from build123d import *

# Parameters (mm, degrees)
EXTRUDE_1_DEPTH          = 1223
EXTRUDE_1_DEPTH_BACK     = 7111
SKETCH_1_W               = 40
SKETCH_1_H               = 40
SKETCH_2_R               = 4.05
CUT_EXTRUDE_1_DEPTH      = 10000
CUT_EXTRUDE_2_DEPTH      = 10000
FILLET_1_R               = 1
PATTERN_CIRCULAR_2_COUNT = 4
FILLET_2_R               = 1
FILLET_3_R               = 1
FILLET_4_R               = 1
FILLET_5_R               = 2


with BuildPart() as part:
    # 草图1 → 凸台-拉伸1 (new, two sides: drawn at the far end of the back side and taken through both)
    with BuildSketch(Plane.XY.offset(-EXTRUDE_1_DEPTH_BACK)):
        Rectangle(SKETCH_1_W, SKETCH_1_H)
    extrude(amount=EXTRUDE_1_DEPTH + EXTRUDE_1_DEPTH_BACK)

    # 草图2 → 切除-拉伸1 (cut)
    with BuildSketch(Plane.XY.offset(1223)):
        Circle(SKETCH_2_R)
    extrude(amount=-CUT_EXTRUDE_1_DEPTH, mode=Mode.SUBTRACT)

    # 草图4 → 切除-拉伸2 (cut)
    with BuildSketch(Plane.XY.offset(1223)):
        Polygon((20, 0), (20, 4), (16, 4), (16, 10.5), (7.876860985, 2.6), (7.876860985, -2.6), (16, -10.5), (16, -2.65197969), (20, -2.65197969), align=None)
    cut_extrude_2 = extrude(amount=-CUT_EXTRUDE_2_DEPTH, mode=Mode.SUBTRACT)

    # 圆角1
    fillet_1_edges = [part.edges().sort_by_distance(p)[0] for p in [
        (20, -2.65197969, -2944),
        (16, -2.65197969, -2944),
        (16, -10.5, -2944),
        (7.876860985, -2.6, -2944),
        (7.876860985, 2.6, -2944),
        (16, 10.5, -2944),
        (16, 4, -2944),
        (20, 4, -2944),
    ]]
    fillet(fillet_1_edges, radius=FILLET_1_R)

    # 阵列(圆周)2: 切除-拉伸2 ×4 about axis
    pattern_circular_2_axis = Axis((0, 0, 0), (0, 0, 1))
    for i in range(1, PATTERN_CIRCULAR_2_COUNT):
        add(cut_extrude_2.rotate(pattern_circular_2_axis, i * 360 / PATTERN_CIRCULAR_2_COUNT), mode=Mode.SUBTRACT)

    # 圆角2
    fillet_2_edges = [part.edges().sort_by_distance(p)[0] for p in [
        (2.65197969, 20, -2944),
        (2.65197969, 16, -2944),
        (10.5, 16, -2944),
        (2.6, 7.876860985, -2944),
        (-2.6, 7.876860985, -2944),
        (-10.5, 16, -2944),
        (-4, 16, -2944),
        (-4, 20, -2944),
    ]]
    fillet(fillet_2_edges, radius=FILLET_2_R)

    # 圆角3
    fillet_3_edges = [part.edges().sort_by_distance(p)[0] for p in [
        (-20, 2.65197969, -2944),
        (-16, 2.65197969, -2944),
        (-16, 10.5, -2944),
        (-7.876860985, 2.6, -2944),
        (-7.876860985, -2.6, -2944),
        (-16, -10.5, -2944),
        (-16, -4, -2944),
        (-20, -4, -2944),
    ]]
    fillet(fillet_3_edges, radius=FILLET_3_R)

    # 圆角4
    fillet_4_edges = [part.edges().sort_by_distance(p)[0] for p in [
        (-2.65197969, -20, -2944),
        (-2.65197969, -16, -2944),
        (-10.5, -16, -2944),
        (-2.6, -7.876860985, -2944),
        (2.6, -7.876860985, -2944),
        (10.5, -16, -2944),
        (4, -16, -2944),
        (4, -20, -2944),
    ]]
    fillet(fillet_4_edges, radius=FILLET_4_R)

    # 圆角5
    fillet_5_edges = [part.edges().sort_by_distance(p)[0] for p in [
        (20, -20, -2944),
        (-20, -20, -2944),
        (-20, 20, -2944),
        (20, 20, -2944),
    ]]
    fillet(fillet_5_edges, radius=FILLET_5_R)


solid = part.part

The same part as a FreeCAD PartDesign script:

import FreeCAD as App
import Part
import Sketcher


def edges_at(feature, points):
    """Names of the edges that pass closest to the given points."""
    edges = feature.Shape.Edges
    near = lambda p: min(range(len(edges)), key=lambda i: edges[i].distToShape(Part.Vertex(*p))[0])
    return sorted({f"Edge{near(p) + 1}" for p in points})

doc = App.newDocument("Part")
params = doc.addObject("Spreadsheet::Sheet", "Params")
for row, (alias, value) in enumerate([
    ("sketch1_width", "40 mm"),
    ("pad1_length", "1223 mm"),
    ("pad1_length2", "7111 mm"),
    ("sketch2_diameter", "8.1 mm"),
    ("pocket1_length", "10000 mm"),
    ("sketch3_width", "4 mm"),
    ("sketch3_height", "6.5 mm"),
    ("sketch3_height2", "5.2 mm"),
    ("pocket2_length", "10000 mm"),
    ("fillet_radius", "1 mm"),
    ("fillet2_radius", "1 mm"),
    ("fillet3_radius", "1 mm"),
    ("fillet4_radius", "1 mm"),
    ("fillet5_radius", "2 mm"),
], start=1):
    params.set(f"A{row}", alias)
    params.set(f"B{row}", "=" + value)
    params.setAlias(f"B{row}", alias)

body = doc.addObject("PartDesign::Body", "Body")

sketch1 = doc.addObject("Sketcher::SketchObject", "Sketch")
body.addObject(sketch1)
sketch1.AttachmentSupport = (doc.XY_Plane, [""])
sketch1.MapMode = "FlatFace"
sketch1.addGeometry([
    Part.LineSegment(App.Vector(-20, 20, 0), App.Vector(-20, -20, 0)),
    Part.LineSegment(App.Vector(-20, -20, 0), App.Vector(20, -20, 0)),
    Part.LineSegment(App.Vector(20, -20, 0), App.Vector(20, 20, 0)),
    Part.LineSegment(App.Vector(20, 20, 0), App.Vector(-20, 20, 0)),
], False)
sketch1.addConstraint([
    Sketcher.Constraint("Coincident", 0, 2, 1, 1),
    Sketcher.Constraint("Coincident", 1, 2, 2, 1),
    Sketcher.Constraint("Coincident", 2, 2, 3, 1),
    Sketcher.Constraint("Coincident", 3, 2, 0, 1),
    Sketcher.Constraint("Vertical", 0),
    Sketcher.Constraint("Horizontal", 1),
    Sketcher.Constraint("Vertical", 2),
    Sketcher.Constraint("Horizontal", 3),
    Sketcher.Constraint("Symmetric", 0, 2, 2, 2, -1, 1),
    Sketcher.Constraint("Equal", 3, 0),
    Sketcher.Constraint("DistanceX", 1, 1, 1, 2, 40.0),
])
sketch1.setExpression("Constraints[10]", "Params.sketch1_width")
pad1 = doc.addObject("PartDesign::Pad", "Pad")
body.addObject(pad1)
pad1.Profile = sketch1
pad1.Type = "TwoLengths"
pad1.setExpression("Length", "Params.pad1_length")
pad1.setExpression("Length2", "Params.pad1_length2")

sketch2 = doc.addObject("Sketcher::SketchObject", "Sketch001")
body.addObject(sketch2)
sketch2.AttachmentSupport = (doc.XY_Plane, [""])
sketch2.MapMode = "FlatFace"
sketch2.AttachmentOffset = App.Placement(App.Vector(0, 0, 1223), App.Rotation())
sketch2.addGeometry(Part.Circle(App.Vector(0, 0, 0), App.Vector(0, 0, 1), 4.05), False)
sketch2.addConstraint([
    Sketcher.Constraint("Coincident", 0, 3, -1, 1),
    Sketcher.Constraint("Diameter", 0, 8.1),
])
sketch2.setExpression("Constraints[1]", "Params.sketch2_diameter")
pocket1 = doc.addObject("PartDesign::Pocket", "Pocket")
body.addObject(pocket1)
pocket1.Profile = sketch2
pocket1.setExpression("Length", "Params.pocket1_length")

sketch3 = doc.addObject("Sketcher::SketchObject", "Sketch002")
body.addObject(sketch3)
sketch3.AttachmentSupport = (doc.XY_Plane, [""])
sketch3.MapMode = "FlatFace"
sketch3.AttachmentOffset = App.Placement(App.Vector(0, 0, 1223), App.Rotation())
sketch3.addGeometry([
    Part.LineSegment(App.Vector(20, 4, 0), App.Vector(16, 4, 0)),
    Part.LineSegment(App.Vector(16, 4, 0), App.Vector(16, 10.5, 0)),
    Part.LineSegment(App.Vector(16, 10.5, 0), App.Vector(7.876861, 2.6, 0)),
    Part.LineSegment(App.Vector(7.876861, 2.6, 0), App.Vector(7.876861, -2.6, 0)),
    Part.LineSegment(App.Vector(7.876861, -2.6, 0), App.Vector(16, -10.5, 0)),
    Part.LineSegment(App.Vector(16, -10.5, 0), App.Vector(16, -2.65198, 0)),
    Part.LineSegment(App.Vector(16, -2.65198, 0), App.Vector(20, -2.65198, 0)),
    Part.LineSegment(App.Vector(20, -2.65198, 0), App.Vector(20, 4, 0)),
], False)
sketch3.addConstraint([
    Sketcher.Constraint("Coincident", 0, 2, 1, 1),
    Sketcher.Constraint("Coincident", 1, 2, 2, 1),
    Sketcher.Constraint("Coincident", 2, 2, 3, 1),
    Sketcher.Constraint("Coincident", 3, 2, 4, 1),
    Sketcher.Constraint("Coincident", 4, 2, 5, 1),
    Sketcher.Constraint("Coincident", 5, 2, 6, 1),
    Sketcher.Constraint("Coincident", 6, 2, 7, 1),
    Sketcher.Constraint("Coincident", 7, 2, 0, 1),
    Sketcher.Constraint("Horizontal", 0),
    Sketcher.Constraint("Vertical", 1),
    Sketcher.Constraint("Vertical", 3),
    Sketcher.Constraint("Vertical", 5),
    Sketcher.Constraint("Horizontal", 6),
    Sketcher.Constraint("Vertical", 7),
    Sketcher.Constraint("Symmetric", 1, 2, 4, 2, -1),
    Sketcher.Constraint("Equal", 2, 4),
    Sketcher.Constraint("DistanceX", 0, 2, 0, 1, 4.0),
    Sketcher.Constraint("DistanceY", 1, 1, 1, 2, 6.5),
    Sketcher.Constraint("DistanceY", 3, 2, 3, 1, 5.2),
    Sketcher.Constraint("DistanceX", -1, 1, 0, 2, 16.0),
    Sketcher.Constraint("DistanceY", -1, 1, 0, 2, 4.0),
    Sketcher.Constraint("DistanceY", 5, 1, 5, 2, 7.84802),
    Sketcher.Constraint("Distance", 2, 11.331169),
])
sketch3.setExpression("Constraints[16]", "Params.sketch3_width")
sketch3.setExpression("Constraints[17]", "Params.sketch3_height")
sketch3.setExpression("Constraints[18]", "Params.sketch3_height2")
pocket2 = doc.addObject("PartDesign::Pocket", "Pocket001")
body.addObject(pocket2)
pocket2.Profile = sketch3
pocket2.setExpression("Length", "Params.pocket2_length")
doc.recompute()

fillet = doc.addObject("PartDesign::Fillet", "Fillet")
body.addObject(fillet)
fillet.Base = (pocket2, edges_at(pocket2, [
    (20, -2.652, -2944),
    (16, -2.652, -2944),
    (16, -10.5, -2944),
    (7.877, -2.6, -2944),
    (7.877, 2.6, -2944),
    (16, 10.5, -2944),
    (16, 4, -2944),
    (20, 4, -2944),
]))
fillet.setExpression("Radius", "Params.fillet_radius")
doc.recompute()

polarpattern = doc.addObject("PartDesign::PolarPattern", "PolarPattern")
body.addObject(polarpattern)
polarpattern.Originals = [pocket2]
polarpattern.Axis = (doc.Z_Axis, [""])
polarpattern.Angle = 360
polarpattern.Occurrences = 4
body.Tip = polarpattern
doc.recompute()

fillet2 = doc.addObject("PartDesign::Fillet", "Fillet001")
body.addObject(fillet2)
fillet2.Base = (polarpattern, edges_at(polarpattern, [
    (2.652, 20, -2944),
    (2.652, 16, -2944),
    (10.5, 16, -2944),
    (2.6, 7.877, -2944),
    (-2.6, 7.877, -2944),
    (-10.5, 16, -2944),
    (-4, 16, -2944),
    (-4, 20, -2944),
]))
fillet2.setExpression("Radius", "Params.fillet2_radius")
doc.recompute()

fillet3 = doc.addObject("PartDesign::Fillet", "Fillet002")
body.addObject(fillet3)
fillet3.Base = (fillet2, edges_at(fillet2, [
    (-20, 2.652, -2944),
    (-16, 2.652, -2944),
    (-16, 10.5, -2944),
    (-7.877, 2.6, -2944),
    (-7.877, -2.6, -2944),
    (-16, -10.5, -2944),
    (-16, -4, -2944),
    (-20, -4, -2944),
]))
fillet3.setExpression("Radius", "Params.fillet3_radius")
doc.recompute()

fillet4 = doc.addObject("PartDesign::Fillet", "Fillet003")
body.addObject(fillet4)
fillet4.Base = (fillet3, edges_at(fillet3, [
    (-2.652, -20, -2944),
    (-2.652, -16, -2944),
    (-10.5, -16, -2944),
    (-2.6, -7.877, -2944),
    (2.6, -7.877, -2944),
    (10.5, -16, -2944),
    (4, -16, -2944),
    (4, -20, -2944),
]))
fillet4.setExpression("Radius", "Params.fillet4_radius")
doc.recompute()

fillet5 = doc.addObject("PartDesign::Fillet", "Fillet004")
body.addObject(fillet5)
fillet5.Base = (fillet4, edges_at(fillet4, [
    (20, -20, -2944),
    (-20, -20, -2944),
    (-20, 20, -2944),
    (20, 20, -2944),
]))
fillet5.setExpression("Radius", "Params.fillet5_radius")

doc.recompute()
